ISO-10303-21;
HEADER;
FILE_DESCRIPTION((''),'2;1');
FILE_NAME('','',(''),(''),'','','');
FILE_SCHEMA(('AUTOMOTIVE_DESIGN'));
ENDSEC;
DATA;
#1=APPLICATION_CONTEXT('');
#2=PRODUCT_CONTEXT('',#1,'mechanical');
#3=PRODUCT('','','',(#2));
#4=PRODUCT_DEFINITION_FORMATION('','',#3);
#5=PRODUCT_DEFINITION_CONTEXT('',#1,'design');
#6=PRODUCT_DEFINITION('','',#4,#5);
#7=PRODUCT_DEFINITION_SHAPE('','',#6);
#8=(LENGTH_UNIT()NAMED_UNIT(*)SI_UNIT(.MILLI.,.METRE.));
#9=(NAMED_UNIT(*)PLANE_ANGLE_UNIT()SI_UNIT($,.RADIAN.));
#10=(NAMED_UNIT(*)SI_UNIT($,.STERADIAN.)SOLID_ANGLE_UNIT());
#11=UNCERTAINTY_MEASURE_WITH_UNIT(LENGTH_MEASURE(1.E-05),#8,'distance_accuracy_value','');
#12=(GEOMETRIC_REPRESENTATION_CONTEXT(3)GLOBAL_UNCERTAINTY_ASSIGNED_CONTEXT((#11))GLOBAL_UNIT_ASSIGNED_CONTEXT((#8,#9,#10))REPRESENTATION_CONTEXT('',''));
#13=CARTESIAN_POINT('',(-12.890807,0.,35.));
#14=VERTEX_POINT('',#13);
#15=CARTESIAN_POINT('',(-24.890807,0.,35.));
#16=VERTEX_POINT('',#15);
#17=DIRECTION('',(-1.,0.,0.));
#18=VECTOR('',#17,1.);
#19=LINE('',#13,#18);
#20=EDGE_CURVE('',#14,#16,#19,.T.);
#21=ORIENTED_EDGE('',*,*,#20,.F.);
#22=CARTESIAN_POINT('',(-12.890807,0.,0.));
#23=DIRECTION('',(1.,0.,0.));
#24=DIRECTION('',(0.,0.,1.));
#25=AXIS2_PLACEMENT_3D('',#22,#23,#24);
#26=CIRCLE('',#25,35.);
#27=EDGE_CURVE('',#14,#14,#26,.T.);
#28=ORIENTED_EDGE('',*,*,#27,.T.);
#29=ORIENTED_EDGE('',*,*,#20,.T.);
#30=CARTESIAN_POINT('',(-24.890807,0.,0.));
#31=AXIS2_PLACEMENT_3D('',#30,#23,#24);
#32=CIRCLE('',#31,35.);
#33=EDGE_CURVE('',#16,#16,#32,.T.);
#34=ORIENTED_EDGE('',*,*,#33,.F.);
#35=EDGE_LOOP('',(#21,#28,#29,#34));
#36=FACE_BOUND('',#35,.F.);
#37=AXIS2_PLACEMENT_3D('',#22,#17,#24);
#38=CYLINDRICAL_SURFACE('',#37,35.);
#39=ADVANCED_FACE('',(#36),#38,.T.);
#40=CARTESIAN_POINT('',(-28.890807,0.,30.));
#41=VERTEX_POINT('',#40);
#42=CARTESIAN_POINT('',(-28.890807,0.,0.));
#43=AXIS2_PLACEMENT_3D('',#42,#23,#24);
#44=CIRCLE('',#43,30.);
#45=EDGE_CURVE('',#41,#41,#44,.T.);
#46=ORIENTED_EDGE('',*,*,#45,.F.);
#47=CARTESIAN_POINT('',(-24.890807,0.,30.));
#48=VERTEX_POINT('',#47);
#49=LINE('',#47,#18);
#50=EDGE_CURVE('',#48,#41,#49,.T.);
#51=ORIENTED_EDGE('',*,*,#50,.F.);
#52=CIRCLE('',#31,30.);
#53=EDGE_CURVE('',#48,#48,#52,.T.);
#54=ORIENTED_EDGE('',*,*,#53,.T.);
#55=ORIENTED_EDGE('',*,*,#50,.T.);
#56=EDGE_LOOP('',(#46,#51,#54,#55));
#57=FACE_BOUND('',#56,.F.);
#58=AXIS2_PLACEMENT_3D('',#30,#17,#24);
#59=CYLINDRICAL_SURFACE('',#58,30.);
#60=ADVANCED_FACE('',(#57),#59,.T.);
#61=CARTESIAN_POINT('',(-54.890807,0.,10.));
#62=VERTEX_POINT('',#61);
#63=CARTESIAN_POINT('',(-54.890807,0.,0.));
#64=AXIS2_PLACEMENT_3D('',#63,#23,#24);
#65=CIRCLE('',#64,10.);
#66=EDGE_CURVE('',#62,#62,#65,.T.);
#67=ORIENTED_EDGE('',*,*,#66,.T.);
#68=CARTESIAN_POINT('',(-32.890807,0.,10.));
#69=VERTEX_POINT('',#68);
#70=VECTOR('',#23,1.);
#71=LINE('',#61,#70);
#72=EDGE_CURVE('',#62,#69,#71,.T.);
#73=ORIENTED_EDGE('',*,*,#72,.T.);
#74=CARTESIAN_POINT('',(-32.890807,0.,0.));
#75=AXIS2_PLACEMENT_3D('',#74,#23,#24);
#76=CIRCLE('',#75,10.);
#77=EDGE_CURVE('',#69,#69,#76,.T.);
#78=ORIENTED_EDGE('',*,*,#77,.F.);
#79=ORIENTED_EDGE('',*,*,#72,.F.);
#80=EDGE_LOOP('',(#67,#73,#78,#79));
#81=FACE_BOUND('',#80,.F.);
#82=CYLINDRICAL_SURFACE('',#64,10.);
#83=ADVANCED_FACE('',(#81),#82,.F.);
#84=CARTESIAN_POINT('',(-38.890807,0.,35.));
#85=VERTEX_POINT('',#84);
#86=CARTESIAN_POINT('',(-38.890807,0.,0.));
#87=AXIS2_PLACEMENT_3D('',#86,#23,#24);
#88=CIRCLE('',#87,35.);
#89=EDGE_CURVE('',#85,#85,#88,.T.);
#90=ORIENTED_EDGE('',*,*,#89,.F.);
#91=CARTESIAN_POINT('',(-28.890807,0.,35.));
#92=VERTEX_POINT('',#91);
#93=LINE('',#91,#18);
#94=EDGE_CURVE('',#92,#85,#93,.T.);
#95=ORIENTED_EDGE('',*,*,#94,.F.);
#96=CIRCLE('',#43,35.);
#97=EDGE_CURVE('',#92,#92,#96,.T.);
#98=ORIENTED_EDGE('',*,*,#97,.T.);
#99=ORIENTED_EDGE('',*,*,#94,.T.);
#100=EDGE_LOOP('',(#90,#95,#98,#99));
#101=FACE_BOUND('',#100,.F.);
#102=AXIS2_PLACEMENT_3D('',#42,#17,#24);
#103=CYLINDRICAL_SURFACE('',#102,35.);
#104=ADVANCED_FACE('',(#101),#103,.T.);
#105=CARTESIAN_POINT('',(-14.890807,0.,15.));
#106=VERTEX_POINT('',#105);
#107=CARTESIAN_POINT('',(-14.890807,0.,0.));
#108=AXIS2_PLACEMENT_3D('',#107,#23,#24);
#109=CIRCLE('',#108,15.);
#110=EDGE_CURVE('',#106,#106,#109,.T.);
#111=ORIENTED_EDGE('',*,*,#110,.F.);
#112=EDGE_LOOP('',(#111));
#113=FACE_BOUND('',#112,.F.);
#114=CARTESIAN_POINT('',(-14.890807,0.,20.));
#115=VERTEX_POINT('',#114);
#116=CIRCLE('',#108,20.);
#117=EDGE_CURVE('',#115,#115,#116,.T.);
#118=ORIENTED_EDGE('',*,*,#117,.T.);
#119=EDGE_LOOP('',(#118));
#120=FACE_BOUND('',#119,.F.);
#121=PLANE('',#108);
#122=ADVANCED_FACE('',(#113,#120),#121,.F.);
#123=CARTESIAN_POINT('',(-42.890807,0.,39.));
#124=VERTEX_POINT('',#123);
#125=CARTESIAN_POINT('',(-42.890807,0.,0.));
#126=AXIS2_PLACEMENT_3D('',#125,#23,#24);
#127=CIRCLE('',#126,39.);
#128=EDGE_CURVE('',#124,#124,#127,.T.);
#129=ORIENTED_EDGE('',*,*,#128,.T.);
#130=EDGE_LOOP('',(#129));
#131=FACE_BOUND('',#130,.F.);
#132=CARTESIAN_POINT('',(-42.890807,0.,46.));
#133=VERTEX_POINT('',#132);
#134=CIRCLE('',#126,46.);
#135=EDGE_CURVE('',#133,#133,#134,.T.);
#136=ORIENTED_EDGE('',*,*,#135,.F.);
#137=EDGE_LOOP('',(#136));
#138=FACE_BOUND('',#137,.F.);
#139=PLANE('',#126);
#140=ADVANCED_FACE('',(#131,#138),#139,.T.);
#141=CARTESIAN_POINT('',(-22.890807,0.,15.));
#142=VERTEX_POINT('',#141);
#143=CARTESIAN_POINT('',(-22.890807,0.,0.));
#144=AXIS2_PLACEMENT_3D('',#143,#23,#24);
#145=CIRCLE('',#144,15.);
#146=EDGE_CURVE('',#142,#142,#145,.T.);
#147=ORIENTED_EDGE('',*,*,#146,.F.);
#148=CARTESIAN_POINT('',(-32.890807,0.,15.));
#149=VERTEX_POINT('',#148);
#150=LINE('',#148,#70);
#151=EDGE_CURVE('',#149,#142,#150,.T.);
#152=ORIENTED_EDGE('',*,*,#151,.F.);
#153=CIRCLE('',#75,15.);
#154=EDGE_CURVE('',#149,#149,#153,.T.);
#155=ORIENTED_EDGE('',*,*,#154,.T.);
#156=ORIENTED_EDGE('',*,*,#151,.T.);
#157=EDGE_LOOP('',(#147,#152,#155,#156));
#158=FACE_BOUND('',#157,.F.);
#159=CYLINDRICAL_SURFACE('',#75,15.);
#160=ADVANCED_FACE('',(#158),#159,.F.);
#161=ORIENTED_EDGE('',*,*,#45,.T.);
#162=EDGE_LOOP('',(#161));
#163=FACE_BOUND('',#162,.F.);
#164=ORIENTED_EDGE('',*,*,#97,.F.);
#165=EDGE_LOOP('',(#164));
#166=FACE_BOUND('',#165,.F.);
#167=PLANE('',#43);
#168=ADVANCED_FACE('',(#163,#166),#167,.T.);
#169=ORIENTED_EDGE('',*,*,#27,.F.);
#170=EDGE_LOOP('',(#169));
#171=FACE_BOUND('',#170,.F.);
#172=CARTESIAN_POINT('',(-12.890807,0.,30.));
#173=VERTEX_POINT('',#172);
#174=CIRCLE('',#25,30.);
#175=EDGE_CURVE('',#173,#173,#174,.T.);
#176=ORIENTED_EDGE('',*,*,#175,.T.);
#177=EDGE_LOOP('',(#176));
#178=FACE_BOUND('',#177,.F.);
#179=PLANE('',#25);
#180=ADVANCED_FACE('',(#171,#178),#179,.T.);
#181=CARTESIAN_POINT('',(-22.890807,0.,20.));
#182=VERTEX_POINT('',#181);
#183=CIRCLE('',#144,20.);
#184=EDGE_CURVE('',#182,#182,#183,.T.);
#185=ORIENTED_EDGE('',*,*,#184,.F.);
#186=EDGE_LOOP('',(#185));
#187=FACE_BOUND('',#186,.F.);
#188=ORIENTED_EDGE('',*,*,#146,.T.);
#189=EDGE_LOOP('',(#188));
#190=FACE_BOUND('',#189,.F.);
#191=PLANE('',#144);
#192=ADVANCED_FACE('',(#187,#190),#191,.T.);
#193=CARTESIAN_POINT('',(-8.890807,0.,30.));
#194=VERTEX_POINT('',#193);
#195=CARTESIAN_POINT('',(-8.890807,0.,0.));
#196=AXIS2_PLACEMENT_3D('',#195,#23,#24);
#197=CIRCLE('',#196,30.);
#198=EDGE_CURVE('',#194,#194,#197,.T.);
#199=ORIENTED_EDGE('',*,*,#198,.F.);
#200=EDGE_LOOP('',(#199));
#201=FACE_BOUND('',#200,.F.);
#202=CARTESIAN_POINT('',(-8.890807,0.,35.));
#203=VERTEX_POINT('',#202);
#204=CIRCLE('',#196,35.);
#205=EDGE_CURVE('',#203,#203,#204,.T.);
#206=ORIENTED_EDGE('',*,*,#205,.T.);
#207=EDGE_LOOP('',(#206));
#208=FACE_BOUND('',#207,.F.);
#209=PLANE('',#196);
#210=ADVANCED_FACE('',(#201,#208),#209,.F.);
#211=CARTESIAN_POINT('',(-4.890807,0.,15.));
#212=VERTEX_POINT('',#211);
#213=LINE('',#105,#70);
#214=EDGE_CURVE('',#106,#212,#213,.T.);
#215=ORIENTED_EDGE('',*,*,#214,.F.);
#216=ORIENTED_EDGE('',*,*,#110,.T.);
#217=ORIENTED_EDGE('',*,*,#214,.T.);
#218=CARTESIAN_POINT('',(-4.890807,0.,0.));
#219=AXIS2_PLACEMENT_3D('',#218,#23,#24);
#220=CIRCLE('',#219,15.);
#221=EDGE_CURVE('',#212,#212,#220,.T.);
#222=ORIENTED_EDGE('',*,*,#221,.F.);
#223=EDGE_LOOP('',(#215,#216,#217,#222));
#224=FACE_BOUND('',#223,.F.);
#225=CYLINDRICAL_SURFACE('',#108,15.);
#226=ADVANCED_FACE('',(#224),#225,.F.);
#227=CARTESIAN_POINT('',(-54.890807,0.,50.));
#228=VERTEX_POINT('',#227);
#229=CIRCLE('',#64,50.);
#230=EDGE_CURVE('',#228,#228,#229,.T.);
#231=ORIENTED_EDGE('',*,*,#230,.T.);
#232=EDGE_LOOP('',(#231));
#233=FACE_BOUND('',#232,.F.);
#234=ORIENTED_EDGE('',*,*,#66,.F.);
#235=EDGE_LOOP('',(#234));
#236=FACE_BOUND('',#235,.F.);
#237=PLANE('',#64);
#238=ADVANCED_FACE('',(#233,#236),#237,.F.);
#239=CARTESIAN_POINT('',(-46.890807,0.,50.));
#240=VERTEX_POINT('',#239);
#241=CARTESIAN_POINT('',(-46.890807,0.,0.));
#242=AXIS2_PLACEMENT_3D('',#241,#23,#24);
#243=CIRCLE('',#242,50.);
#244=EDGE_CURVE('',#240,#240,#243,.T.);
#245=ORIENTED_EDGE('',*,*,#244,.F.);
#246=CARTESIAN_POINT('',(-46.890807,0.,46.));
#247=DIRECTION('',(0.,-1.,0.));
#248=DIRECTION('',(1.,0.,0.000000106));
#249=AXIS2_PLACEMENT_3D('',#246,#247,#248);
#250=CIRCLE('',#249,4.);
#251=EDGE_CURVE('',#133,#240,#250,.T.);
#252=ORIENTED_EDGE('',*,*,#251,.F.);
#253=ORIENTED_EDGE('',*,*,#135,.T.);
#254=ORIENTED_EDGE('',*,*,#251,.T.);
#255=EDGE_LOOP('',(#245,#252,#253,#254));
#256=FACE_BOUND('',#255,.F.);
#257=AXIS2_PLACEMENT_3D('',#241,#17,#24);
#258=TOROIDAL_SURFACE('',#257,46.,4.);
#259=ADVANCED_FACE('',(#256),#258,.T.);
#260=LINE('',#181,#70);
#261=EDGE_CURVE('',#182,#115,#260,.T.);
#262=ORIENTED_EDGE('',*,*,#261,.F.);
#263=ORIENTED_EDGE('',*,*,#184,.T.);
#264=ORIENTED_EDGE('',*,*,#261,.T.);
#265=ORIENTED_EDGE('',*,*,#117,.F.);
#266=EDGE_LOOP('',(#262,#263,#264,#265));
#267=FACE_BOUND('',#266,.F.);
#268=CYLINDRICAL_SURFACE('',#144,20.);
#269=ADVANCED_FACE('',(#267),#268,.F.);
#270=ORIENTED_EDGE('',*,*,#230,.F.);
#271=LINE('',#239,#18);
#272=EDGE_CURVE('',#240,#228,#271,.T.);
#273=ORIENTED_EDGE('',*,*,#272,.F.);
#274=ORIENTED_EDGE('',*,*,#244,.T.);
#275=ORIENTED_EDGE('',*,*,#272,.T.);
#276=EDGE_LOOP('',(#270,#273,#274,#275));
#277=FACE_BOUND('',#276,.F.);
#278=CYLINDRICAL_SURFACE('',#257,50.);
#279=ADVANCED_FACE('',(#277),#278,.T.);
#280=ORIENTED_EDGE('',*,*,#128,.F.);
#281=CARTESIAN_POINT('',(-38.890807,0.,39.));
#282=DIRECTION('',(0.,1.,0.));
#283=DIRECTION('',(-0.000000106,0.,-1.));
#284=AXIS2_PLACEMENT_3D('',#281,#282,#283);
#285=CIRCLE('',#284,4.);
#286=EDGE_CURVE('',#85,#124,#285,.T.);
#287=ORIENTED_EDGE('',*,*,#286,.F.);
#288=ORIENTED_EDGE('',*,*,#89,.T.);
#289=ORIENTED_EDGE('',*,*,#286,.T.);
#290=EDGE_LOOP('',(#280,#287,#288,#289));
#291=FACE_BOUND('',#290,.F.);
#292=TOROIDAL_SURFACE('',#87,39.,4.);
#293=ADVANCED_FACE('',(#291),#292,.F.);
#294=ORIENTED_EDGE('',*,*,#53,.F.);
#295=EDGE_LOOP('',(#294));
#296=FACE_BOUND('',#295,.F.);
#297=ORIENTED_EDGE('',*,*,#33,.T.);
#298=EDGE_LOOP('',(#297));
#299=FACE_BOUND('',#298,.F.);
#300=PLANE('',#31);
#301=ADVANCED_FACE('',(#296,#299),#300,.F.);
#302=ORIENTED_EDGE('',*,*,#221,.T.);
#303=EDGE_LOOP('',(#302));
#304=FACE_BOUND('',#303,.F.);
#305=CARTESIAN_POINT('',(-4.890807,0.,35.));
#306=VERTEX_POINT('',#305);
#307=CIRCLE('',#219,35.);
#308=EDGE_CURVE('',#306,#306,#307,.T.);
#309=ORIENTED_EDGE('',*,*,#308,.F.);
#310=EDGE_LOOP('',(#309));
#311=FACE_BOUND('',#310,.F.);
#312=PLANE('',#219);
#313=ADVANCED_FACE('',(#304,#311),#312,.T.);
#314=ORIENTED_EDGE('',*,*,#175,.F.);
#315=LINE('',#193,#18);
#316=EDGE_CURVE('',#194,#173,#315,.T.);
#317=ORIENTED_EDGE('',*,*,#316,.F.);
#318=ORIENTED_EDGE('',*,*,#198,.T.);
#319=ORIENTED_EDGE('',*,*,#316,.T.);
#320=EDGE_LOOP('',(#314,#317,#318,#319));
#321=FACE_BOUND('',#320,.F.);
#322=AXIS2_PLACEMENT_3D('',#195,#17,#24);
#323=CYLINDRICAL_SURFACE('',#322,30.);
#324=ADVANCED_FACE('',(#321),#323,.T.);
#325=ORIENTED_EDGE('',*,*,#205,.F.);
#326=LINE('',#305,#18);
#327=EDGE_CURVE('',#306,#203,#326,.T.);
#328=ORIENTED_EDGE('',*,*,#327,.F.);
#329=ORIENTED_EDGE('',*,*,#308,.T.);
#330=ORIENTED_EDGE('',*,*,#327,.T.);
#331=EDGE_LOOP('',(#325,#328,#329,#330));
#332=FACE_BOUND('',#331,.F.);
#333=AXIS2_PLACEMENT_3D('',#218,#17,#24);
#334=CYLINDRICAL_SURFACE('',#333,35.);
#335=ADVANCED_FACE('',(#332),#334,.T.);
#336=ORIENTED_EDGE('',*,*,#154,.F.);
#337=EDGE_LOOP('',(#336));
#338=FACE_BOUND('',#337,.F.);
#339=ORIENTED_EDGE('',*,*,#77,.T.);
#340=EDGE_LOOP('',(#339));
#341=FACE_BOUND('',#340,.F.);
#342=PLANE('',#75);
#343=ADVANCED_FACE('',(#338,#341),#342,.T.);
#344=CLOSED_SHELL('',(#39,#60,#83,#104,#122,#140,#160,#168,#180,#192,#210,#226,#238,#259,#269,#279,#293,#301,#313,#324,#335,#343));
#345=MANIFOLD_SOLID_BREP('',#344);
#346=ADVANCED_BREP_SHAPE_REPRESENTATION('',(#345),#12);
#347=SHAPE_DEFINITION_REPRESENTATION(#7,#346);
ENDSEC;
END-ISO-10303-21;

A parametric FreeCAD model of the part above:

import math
import FreeCAD as App
import Part
import Sketcher
from FreeCAD import Vector

doc = App.newDocument("Part")
body = doc.addObject("PartDesign::Body", "Body")

sketch1 = body.newObject("Sketcher::SketchObject", "Sketch")
sketch1.AttachmentSupport = (doc.getObject("XZ_Plane"), [""])
sketch1.MapMode = "FlatFace"
sketch1.addGeometry([
    Part.LineSegment(Vector(-54.9, 50, 0), Vector(-54.9, 10, 0)),
    Part.LineSegment(Vector(-54.9, 10, 0), Vector(-32.9, 10, 0)),
    Part.LineSegment(Vector(-32.9, 10, 0), Vector(-32.9, 15, 0)),
    Part.LineSegment(Vector(-32.9, 15, 0), Vector(-22.9, 15, 0)),
    Part.LineSegment(Vector(-22.9, 15, 0), Vector(-22.9, 20, 0)),
    Part.LineSegment(Vector(-22.9, 20, 0), Vector(-14.9, 20, 0)),
    Part.LineSegment(Vector(-14.9, 20, 0), Vector(-14.9, 15, 0)),
    Part.LineSegment(Vector(-14.9, 15, 0), Vector(-4.9, 15, 0)),
    Part.LineSegment(Vector(-4.9, 15, 0), Vector(-4.9, 35, 0)),
    Part.LineSegment(Vector(-4.9, 35, 0), Vector(-8.9, 35, 0)),
    Part.LineSegment(Vector(-8.9, 35, 0), Vector(-8.9, 30, 0)),
    Part.LineSegment(Vector(-8.9, 30, 0), Vector(-12.9, 30, 0)),
    Part.LineSegment(Vector(-12.9, 30, 0), Vector(-12.9, 35, 0)),
    Part.LineSegment(Vector(-12.9, 35, 0), Vector(-24.9, 35, 0)),
    Part.LineSegment(Vector(-24.9, 35, 0), Vector(-24.9, 30, 0)),
    Part.LineSegment(Vector(-24.9, 30, 0), Vector(-28.9, 30, 0)),
    Part.LineSegment(Vector(-28.9, 30, 0), Vector(-28.9, 35, 0)),
    Part.LineSegment(Vector(-28.9, 35, 0), Vector(-38.9, 35, 0)),
    Part.ArcOfCircle(Part.Circle(Vector(-38.9, 39, 0), Vector(0, 0, 1), 4), math.radians(-180), math.radians(-90)),
    Part.LineSegment(Vector(-42.9, 39, 0), Vector(-42.9, 46, 0)),
    Part.ArcOfCircle(Part.Circle(Vector(-46.9, 46, 0), Vector(0, 0, 1), 4), math.radians(0), math.radians(90)),
    Part.LineSegment(Vector(-46.9, 50, 0), Vector(-54.9, 50, 0)),
], False)
sketch1.addConstraint([
    Sketcher.Constraint("Coincident", 0, 2, 1, 1),
    Sketcher.Constraint("Coincident", 1, 2, 2, 1),
    Sketcher.Constraint("Coincident", 2, 2, 3, 1),
    Sketcher.Constraint("Coincident", 3, 2, 4, 1),
    Sketcher.Constraint("Coincident", 4, 2, 5, 1),
    Sketcher.Constraint("Coincident", 5, 2, 6, 1),
    Sketcher.Constraint("Coincident", 6, 2, 7, 1),
    Sketcher.Constraint("Coincident", 7, 2, 8, 1),
    Sketcher.Constraint("Coincident", 8, 2, 9, 1),
    Sketcher.Constraint("Coincident", 9, 2, 10, 1),
    Sketcher.Constraint("Coincident", 10, 2, 11, 1),
    Sketcher.Constraint("Coincident", 11, 2, 12, 1),
    Sketcher.Constraint("Coincident", 12, 2, 13, 1),
    Sketcher.Constraint("Coincident", 13, 2, 14, 1),
    Sketcher.Constraint("Coincident", 14, 2, 15, 1),
    Sketcher.Constraint("Coincident", 15, 2, 16, 1),
    Sketcher.Constraint("Coincident", 16, 2, 17, 1),
    Sketcher.Constraint("Tangent", 17, 2, 18, 2),
    Sketcher.Constraint("Tangent", 18, 1, 19, 1),
    Sketcher.Constraint("Tangent", 19, 2, 20, 1),
    Sketcher.Constraint("Tangent", 20, 2, 21, 1),
    Sketcher.Constraint("Coincident", 21, 2, 0, 1),
    Sketcher.Constraint("Vertical", 0),
    Sketcher.Constraint("Horizontal", 1),
    Sketcher.Constraint("Vertical", 2),
    Sketcher.Constraint("Horizontal", 3),
    Sketcher.Constraint("Vertical", 4),
    Sketcher.Constraint("Horizontal", 5),
    Sketcher.Constraint("Vertical", 6),
    Sketcher.Constraint("Horizontal", 7),
    Sketcher.Constraint("Vertical", 8),
    Sketcher.Constraint("Horizontal", 9),
    Sketcher.Constraint("Vertical", 10),
    Sketcher.Constraint("Horizontal", 11),
    Sketcher.Constraint("Vertical", 12),
    Sketcher.Constraint("Horizontal", 13),
    Sketcher.Constraint("Vertical", 14),
    Sketcher.Constraint("Horizontal", 15),
    Sketcher.Constraint("Vertical", 16),
    Sketcher.Constraint("Horizontal", 17),
    Sketcher.Constraint("Vertical", 19),
    Sketcher.Constraint("Horizontal", 21),
    Sketcher.Constraint("Equal", 18, 20),
    Sketcher.Constraint("Horizontal", 3, 2, 6, 2),
    Sketcher.Constraint("Horizontal", 9, 2, 12, 2),
    Sketcher.Constraint("Horizontal", 11, 2, 14, 2),
    Sketcher.Constraint("Horizontal", 13, 2, 16, 2),
    Sketcher.Constraint("Equal", 3, 7),
    Sketcher.Constraint("Equal", 9, 11),
    Sketcher.Constraint("Equal", 11, 15),
    Sketcher.Constraint("Equal", 7, 17),
    Sketcher.Constraint("Equal", 5, 21),
    Sketcher.Constraint("Equal", 2, 4),
    Sketcher.Constraint("Equal", 6, 10),
    Sketcher.Constraint("Radius", 18, 4.0),
    Sketcher.Constraint("DistanceX", 1, 1, 1, 2, 22.0),
    Sketcher.Constraint("DistanceX", 3, 1, 3, 2, 10.0),
    Sketcher.Constraint("DistanceX", 5, 1, 5, 2, 8.0),
    Sketcher.Constraint("DistanceX", 9, 2, 9, 1, 4.0),
    Sketcher.Constraint("DistanceY", 0, 2, 0, 1, 40.0),
    Sketcher.Constraint("DistanceY", 2, 1, 2, 2, 5.0),
    Sketcher.Constraint("DistanceY", 8, 1, 8, 2, 20.0),
    Sketcher.Constraint("DistanceY", -1, 1, 18, 3, 39.0),
    Sketcher.Constraint("DistanceX", 18, 3, -1, 1, 38.890807),
])
revolution = body.newObject("PartDesign::Revolution", "Revolution")
revolution.Profile = sketch1
revolution.ReferenceAxis = (sketch1, ["H_Axis"])
revolution.Angle = 360

doc.recompute()
